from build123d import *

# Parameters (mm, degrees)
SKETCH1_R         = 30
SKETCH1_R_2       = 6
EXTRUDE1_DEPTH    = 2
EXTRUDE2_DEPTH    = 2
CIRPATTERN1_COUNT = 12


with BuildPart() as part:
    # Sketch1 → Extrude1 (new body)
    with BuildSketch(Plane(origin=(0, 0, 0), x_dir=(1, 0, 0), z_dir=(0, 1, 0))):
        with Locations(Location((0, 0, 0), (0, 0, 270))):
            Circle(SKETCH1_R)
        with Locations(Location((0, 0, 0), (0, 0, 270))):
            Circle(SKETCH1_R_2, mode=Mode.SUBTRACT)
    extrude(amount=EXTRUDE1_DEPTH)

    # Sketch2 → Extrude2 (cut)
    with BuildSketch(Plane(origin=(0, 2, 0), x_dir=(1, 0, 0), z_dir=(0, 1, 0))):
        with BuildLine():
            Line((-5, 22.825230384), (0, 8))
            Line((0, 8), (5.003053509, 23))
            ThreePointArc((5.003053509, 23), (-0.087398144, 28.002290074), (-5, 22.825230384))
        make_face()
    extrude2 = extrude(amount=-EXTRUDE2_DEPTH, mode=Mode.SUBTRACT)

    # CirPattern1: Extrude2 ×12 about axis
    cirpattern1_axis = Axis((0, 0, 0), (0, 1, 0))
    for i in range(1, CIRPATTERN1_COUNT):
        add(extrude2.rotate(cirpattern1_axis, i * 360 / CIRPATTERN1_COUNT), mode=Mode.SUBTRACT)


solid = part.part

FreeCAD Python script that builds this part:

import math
import FreeCAD as App
import Part
import Sketcher
from FreeCAD import Vector

doc = App.newDocument("Part")
body = doc.addObject("PartDesign::Body", "Body")

sketch1 = body.newObject("Sketcher::SketchObject", "Sketch")
sketch1.AttachmentSupport = (doc.getObject("XZ_Plane"), [""])
sketch1.MapMode = "FlatFace"
sketch1.addGeometry([
    Part.Circle(Vector(0, 0, 0), Vector(0, 0, 1), 30),
    Part.Circle(Vector(0, 0, 0), Vector(0, 0, 1), 6),
], False)
sketch1.addConstraint([
    Sketcher.Constraint("Coincident", 0, 3, -1, 1),
    Sketcher.Constraint("Coincident", 1, 3, -1, 1),
    Sketcher.Constraint("Diameter", 0, 60.0),
    Sketcher.Constraint("Diameter", 1, 12.0),
])
pad1 = body.newObject("PartDesign::Pad", "Pad")
pad1.Profile = sketch1
pad1.Length = 2
pad1.Reversed = True

sketch2 = body.newObject("Sketcher::SketchObject", "Sketch001")
sketch2.AttachmentSupport = (doc.getObject("XZ_Plane"), [""])
sketch2.MapMode = "FlatFace"
sketch2.AttachmentOffset = App.Placement(Vector(0, 0, -2), App.Rotation())
sketch2.addGeometry([
    Part.LineSegment(Vector(-5, -22.82523, 0), Vector(0, -8, 0)),
    Part.LineSegment(Vector(0, -8, 0), Vector(5.003054, -23, 0)),
    Part.ArcOfCircle(Part.Circle(Vector(0, -23, 0), Vector(0, 0, 1), 5.003054), math.radians(177.998103), math.radians(360)),
], False)
sketch2.addConstraint([
    Sketcher.Constraint("Coincident", 0, 2, 1, 1),
    Sketcher.Constraint("Coincident", 1, 2, 2, 2),
    Sketcher.Constraint("Coincident", 2, 1, 0, 1),
    Sketcher.Constraint("PointOnObject", 2, 3, -2),
    Sketcher.Constraint("PointOnObject", 0, 2, -2),
    Sketcher.Constraint("Horizontal", 2, 3, 1, 2),
    Sketcher.Constraint("DistanceY", 2, 3, -1, 1, 23.0),
    Sketcher.Constraint("DistanceY", 0, 2, -1, 1, 8.0),
    Sketcher.Constraint("DistanceX", 2, 1, -1, 1, 5.0),
    Sketcher.Constraint("Radius", 2, 5.003054),
])
pocket1 = body.newObject("PartDesign::Pocket", "Pocket")
pocket1.Profile = sketch2
pocket1.Length = 2
pocket1.Reversed = True
doc.recompute()

polarpattern = body.newObject("PartDesign::PolarPattern", "PolarPattern")
polarpattern.Originals = [pocket1]
polarpattern.Axis = (doc.getObject("Y_Axis"), [""])
polarpattern.Angle = 360
polarpattern.Occurrences = 12
body.Tip = polarpattern

doc.recompute()
